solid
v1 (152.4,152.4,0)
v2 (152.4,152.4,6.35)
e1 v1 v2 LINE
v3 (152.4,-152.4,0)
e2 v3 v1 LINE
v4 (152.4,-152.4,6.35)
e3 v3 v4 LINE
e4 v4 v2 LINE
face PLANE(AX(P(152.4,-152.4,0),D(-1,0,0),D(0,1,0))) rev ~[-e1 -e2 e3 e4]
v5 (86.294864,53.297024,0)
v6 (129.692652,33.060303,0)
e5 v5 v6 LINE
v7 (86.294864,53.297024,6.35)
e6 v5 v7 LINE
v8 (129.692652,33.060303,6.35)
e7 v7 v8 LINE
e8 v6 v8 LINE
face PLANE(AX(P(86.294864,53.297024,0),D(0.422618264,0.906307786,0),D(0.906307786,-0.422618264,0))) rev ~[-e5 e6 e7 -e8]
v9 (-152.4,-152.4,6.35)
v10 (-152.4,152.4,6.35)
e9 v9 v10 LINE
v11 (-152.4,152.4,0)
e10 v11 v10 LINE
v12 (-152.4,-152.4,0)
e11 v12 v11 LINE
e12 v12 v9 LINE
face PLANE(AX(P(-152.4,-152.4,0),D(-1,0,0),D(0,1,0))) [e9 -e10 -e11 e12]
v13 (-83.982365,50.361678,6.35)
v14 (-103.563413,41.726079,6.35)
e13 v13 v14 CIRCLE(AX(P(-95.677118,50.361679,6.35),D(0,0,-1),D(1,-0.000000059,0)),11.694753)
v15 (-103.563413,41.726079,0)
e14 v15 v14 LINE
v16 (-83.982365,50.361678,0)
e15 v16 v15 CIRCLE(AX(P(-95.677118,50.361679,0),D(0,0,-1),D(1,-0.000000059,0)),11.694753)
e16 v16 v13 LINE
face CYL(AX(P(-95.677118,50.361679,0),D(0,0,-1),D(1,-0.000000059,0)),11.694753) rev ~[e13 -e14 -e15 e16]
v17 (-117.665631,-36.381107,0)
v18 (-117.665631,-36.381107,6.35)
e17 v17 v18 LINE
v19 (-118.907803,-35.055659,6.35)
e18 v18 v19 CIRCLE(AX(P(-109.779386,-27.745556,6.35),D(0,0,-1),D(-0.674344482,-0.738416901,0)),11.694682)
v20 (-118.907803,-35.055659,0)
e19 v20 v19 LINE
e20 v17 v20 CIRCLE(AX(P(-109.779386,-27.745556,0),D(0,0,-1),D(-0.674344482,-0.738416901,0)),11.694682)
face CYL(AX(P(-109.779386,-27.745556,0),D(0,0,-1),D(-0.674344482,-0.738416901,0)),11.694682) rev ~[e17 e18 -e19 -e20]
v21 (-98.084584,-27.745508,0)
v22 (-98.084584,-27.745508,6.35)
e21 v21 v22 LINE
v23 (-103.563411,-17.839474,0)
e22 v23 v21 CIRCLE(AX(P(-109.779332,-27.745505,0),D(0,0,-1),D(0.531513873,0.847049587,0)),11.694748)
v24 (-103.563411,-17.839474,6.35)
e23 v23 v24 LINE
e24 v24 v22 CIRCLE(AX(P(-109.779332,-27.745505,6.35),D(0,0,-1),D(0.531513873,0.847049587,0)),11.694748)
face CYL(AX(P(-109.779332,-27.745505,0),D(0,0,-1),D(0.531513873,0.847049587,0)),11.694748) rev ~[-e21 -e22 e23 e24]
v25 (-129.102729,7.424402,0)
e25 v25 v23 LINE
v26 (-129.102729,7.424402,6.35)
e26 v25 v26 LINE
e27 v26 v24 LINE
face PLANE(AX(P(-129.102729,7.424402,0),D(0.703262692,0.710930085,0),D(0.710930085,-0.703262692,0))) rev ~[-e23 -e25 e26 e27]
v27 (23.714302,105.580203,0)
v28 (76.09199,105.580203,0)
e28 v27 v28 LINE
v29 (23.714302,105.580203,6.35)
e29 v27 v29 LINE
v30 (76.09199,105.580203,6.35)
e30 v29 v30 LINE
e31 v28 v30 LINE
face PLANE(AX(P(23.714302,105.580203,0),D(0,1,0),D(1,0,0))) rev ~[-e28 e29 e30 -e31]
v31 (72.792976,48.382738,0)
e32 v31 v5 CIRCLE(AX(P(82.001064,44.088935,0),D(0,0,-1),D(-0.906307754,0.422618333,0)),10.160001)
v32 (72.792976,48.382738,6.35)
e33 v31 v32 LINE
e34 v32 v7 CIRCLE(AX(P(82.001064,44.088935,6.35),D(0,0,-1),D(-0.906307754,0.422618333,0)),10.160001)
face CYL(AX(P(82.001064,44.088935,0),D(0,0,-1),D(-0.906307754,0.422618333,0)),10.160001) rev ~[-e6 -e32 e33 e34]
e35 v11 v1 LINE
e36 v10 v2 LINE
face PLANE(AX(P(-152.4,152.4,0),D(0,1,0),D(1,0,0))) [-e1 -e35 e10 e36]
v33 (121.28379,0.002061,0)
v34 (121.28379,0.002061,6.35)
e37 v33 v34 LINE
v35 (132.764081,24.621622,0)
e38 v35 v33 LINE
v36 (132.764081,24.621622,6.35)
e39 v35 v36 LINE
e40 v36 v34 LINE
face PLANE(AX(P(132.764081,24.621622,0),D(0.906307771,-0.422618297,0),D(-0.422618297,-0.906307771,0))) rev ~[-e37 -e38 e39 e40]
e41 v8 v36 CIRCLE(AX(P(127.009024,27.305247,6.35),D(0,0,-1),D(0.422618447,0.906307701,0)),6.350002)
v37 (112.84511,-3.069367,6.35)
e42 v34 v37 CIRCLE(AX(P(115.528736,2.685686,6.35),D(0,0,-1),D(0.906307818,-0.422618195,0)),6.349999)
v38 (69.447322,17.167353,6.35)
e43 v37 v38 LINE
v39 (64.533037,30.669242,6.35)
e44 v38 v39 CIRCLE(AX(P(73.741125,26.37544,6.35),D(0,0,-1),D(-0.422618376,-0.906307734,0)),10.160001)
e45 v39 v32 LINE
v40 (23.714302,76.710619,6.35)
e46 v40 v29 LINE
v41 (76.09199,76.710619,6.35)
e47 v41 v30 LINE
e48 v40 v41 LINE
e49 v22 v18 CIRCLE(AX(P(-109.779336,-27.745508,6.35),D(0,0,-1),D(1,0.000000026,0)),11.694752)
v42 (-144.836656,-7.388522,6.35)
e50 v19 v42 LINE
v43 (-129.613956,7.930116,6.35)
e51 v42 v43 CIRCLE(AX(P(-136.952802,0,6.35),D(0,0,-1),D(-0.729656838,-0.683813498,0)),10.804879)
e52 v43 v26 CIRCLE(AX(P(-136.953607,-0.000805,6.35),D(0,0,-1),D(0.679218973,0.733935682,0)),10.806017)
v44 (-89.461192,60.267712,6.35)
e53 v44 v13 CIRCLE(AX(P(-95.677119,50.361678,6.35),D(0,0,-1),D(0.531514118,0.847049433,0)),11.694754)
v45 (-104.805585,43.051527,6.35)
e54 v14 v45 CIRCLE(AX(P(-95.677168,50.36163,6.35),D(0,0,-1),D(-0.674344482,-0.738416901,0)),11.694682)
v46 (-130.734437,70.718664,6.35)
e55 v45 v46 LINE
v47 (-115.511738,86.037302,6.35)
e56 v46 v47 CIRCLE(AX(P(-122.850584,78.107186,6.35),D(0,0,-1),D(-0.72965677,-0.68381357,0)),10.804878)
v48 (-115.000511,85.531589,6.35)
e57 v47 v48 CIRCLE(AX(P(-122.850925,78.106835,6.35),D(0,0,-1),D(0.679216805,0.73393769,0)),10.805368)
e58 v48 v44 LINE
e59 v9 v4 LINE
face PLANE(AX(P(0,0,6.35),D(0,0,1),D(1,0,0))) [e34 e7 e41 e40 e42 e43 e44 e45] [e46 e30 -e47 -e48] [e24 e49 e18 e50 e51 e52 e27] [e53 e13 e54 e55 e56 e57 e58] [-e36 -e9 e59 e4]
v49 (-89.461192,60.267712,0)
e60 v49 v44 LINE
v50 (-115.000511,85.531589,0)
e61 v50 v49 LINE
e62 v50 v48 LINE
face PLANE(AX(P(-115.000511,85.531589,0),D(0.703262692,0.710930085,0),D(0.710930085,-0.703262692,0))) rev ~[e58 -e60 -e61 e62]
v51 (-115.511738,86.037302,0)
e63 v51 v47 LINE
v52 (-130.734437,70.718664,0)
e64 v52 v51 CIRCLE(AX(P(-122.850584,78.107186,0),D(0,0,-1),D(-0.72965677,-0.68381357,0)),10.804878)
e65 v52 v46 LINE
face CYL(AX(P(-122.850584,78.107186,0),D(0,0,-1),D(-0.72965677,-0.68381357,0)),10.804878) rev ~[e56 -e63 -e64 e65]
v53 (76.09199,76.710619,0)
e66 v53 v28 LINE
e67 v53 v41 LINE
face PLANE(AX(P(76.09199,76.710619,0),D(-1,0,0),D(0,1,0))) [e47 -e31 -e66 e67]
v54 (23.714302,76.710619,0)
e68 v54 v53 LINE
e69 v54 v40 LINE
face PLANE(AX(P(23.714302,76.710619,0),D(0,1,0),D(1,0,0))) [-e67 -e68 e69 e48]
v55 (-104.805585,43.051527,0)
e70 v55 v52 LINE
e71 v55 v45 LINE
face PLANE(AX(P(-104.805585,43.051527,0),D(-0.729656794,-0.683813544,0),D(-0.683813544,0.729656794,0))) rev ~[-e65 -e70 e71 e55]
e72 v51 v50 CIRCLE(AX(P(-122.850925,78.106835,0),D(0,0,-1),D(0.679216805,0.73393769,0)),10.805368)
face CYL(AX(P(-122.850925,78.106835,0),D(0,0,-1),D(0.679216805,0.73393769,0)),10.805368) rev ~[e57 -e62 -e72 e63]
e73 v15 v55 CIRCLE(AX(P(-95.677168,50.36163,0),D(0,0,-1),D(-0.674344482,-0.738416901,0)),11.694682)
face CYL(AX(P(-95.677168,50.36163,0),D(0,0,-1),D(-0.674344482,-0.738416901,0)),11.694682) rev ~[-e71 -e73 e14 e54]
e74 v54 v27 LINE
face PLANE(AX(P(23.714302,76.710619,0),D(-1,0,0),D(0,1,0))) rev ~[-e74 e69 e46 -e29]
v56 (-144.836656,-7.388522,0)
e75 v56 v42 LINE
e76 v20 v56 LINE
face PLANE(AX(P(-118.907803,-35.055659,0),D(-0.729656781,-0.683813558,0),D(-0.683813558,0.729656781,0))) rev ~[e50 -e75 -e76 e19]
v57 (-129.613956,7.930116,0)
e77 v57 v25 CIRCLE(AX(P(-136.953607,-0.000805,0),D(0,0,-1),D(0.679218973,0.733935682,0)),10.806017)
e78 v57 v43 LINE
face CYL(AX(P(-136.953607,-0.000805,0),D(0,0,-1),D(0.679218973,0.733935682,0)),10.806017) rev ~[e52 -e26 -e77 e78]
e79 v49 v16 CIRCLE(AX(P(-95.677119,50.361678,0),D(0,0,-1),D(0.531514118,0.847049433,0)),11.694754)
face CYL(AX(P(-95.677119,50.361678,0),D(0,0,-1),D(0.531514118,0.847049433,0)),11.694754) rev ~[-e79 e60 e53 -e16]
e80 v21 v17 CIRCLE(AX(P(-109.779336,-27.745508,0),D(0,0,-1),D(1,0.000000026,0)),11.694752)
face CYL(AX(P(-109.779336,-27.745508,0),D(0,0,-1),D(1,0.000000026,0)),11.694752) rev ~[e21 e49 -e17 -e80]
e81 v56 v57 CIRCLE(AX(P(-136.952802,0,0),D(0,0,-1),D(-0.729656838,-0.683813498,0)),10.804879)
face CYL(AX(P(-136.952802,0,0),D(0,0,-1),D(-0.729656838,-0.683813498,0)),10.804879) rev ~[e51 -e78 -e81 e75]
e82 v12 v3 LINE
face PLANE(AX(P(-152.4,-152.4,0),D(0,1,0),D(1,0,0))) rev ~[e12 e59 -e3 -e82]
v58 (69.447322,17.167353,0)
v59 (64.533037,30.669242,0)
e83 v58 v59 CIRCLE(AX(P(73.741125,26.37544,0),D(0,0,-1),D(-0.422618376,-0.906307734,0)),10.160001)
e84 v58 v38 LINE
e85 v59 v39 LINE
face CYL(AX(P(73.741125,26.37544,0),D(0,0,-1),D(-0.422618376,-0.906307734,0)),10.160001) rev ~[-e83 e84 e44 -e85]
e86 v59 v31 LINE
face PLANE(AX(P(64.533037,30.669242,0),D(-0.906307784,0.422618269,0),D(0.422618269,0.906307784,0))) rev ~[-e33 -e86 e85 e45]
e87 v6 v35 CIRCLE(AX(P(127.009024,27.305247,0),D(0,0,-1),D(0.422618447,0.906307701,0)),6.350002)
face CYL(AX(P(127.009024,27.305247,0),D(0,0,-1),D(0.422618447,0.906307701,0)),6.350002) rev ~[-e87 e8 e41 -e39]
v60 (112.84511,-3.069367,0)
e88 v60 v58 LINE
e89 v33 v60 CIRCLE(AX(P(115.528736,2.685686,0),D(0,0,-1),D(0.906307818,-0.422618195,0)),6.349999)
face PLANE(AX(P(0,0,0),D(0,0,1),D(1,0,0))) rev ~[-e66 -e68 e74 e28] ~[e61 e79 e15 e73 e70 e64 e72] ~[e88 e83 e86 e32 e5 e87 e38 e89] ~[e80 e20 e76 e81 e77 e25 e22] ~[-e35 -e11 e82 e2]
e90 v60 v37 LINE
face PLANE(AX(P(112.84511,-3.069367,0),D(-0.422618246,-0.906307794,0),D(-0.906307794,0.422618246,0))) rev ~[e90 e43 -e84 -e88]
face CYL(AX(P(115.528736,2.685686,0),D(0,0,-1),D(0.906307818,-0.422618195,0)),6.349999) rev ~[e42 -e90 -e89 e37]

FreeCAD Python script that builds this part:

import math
import FreeCAD as App
import Part
import Sketcher
Q = App.Units.Quantity

doc = App.newDocument("Part")
body = doc.addObject("PartDesign::Body", "Body")

# Sketch on XY plane
sketch1 = doc.addObject("Sketcher::SketchObject", "Sketch")
body.addObject(sketch1)
sketch1.AttachmentSupport = (doc.XY_Plane, [""])
sketch1.MapMode = "FlatFace"
sketch1.addGeometry([
    Part.LineSegment(App.Vector(-152.4, 152.4, 0), App.Vector(-152.4, -152.4, 0)),  # 0
    Part.LineSegment(App.Vector(-152.4, -152.4, 0), App.Vector(152.4, -152.4, 0)),  # 1
    Part.LineSegment(App.Vector(152.4, -152.4, 0), App.Vector(152.4, 152.4, 0)),  # 2
    Part.LineSegment(App.Vector(152.4, 152.4, 0), App.Vector(-152.4, 152.4, 0)),  # 3
    Part.LineSegment(App.Vector(-118.907803, -35.055659, 0), App.Vector(-144.836656, -7.388522, 0)),  # 4
    Part.ArcOfCircle(Part.Circle(App.Vector(-136.952802, 0, 0), App.Vector(0, 0, 1), 10.804879), math.radians(47.217593), math.radians(223.142367)),  # 5
    Part.ArcOfCircle(Part.Circle(App.Vector(-136.953607, -0.000805, 0), App.Vector(0, 0, 1), 10.806017), math.radians(43.403854), math.radians(47.217359)),  # 6
    Part.LineSegment(App.Vector(-129.102729, 7.424402, 0), App.Vector(-103.563411, -17.839474, 0)),  # 7
    Part.ArcOfCircle(Part.Circle(App.Vector(-109.779332, -27.745505, 0), App.Vector(0, 0, 1), 11.694748), math.radians(-0.000014), math.radians(57.892202)),  # 8
    Part.ArcOfCircle(Part.Circle(App.Vector(-109.779336, -27.745508, 0), App.Vector(0, 0, 1), 11.694752), math.radians(-132.403293), math.radians(0.000001)),  # 9
    Part.ArcOfCircle(Part.Circle(App.Vector(-109.779386, -27.745556, 0), App.Vector(0, 0, 1), 11.694682), math.radians(-141.311997), math.radians(-132.403266)),  # 10
    Part.LineSegment(App.Vector(64.533037, 30.669242, 0), App.Vector(72.792976, 48.382738, 0)),  # 11
    Part.ArcOfCircle(Part.Circle(App.Vector(82.001064, 44.088935, 0), App.Vector(0, 0, 1), 10.160001), math.radians(65.000009), math.radians(154.999995)),  # 12
    Part.LineSegment(App.Vector(86.294864, 53.297024, 0), App.Vector(129.692652, 33.060303, 0)),  # 13
    Part.ArcOfCircle(Part.Circle(App.Vector(127.009024, 27.305247, 0), App.Vector(0, 0, 1), 6.350002), math.radians(-24.999985), math.radians(64.999988)),  # 14
    Part.LineSegment(App.Vector(132.764081, 24.621622, 0), App.Vector(121.28379, 0.002061, 0)),  # 15
    Part.ArcOfCircle(Part.Circle(App.Vector(115.528736, 2.685686, 0), App.Vector(0, 0, 1), 6.349999), math.radians(-115.000008), math.radians(-24.999996)),  # 16
    Part.LineSegment(App.Vector(112.84511, -3.069367, 0), App.Vector(69.447322, 17.167353, 0)),  # 17
    Part.ArcOfCircle(Part.Circle(App.Vector(73.741125, 26.37544, 0), App.Vector(0, 0, 1), 10.160001), math.radians(155.000002), math.radians(244.999993)),  # 18
    Part.LineSegment(App.Vector(-104.805585, 43.051527, 0), App.Vector(-130.734437, 70.718664, 0)),  # 19
    Part.ArcOfCircle(Part.Circle(App.Vector(-122.850584, 78.107186, 0), App.Vector(0, 0, 1), 10.804878), math.radians(47.217591), math.radians(223.142372)),  # 20
    Part.ArcOfCircle(Part.Circle(App.Vector(-122.850925, 78.106835, 0), App.Vector(0, 0, 1), 10.805368), math.radians(43.403798), math.radians(47.217528)),  # 21
    Part.LineSegment(App.Vector(-115.000511, 85.531589, 0), App.Vector(-89.461192, 60.267712, 0)),  # 22
    Part.ArcOfCircle(Part.Circle(App.Vector(-95.677119, 50.361678, 0), App.Vector(0, 0, 1), 11.694754), math.radians(0.000002), math.radians(57.892185)),  # 23
    Part.ArcOfCircle(Part.Circle(App.Vector(-95.677118, 50.361679, 0), App.Vector(0, 0, 1), 11.694753), math.radians(-132.40329), math.radians(-0.000003)),  # 24
    Part.ArcOfCircle(Part.Circle(App.Vector(-95.677168, 50.36163, 0), App.Vector(0, 0, 1), 11.694682), math.radians(-141.311997), math.radians(-132.403266)),  # 25
    Part.LineSegment(App.Vector(76.09199, 76.710619, 0), App.Vector(23.714302, 76.710619, 0)),  # 26
    Part.LineSegment(App.Vector(23.714302, 76.710619, 0), App.Vector(23.714302, 105.580203, 0)),  # 27
    Part.LineSegment(App.Vector(23.714302, 105.580203, 0), App.Vector(76.09199, 105.580203, 0)),  # 28
    Part.LineSegment(App.Vector(76.09199, 105.580203, 0), App.Vector(76.09199, 76.710619, 0)),  # 29
], False)
sketch1.addConstraint([
    Sketcher.Constraint("Coincident", 0, 2, 1, 1),
    Sketcher.Constraint("Coincident", 1, 2, 2, 1),
    Sketcher.Constraint("Coincident", 2, 2, 3, 1),
    Sketcher.Constraint("Coincident", 3, 2, 0, 1),
    Sketcher.Constraint("Tangent", 4, 2, 5, 2),
    Sketcher.Constraint("Coincident", 5, 1, 6, 2),
    Sketcher.Constraint("Coincident", 6, 1, 7, 1),
    Sketcher.Constraint("Coincident", 7, 2, 8, 2),
    Sketcher.Constraint("Tangent", 8, 1, 9, 2),
    Sketcher.Constraint("Tangent", 9, 1, 10, 2),
    Sketcher.Constraint("Coincident", 10, 1, 4, 1),
    Sketcher.Constraint("Tangent", 11, 2, 12, 2),
    Sketcher.Constraint("Tangent", 12, 1, 13, 1),
    Sketcher.Constraint("Tangent", 13, 2, 14, 2),
    Sketcher.Constraint("Tangent", 14, 1, 15, 1),
    Sketcher.Constraint("Tangent", 15, 2, 16, 2),
    Sketcher.Constraint("Tangent", 16, 1, 17, 1),
    Sketcher.Constraint("Tangent", 17, 2, 18, 2),
    Sketcher.Constraint("Tangent", 18, 1, 11, 1),
    Sketcher.Constraint("Tangent", 19, 2, 20, 2),
    Sketcher.Constraint("Tangent", 20, 1, 21, 2),
    Sketcher.Constraint("Coincident", 21, 1, 22, 1),
    Sketcher.Constraint("Coincident", 22, 2, 23, 2),
    Sketcher.Constraint("Tangent", 23, 1, 24, 2),
    Sketcher.Constraint("Tangent", 24, 1, 25, 2),
    Sketcher.Constraint("Coincident", 25, 1, 19, 1),
    Sketcher.Constraint("Coincident", 26, 2, 27, 1),
    Sketcher.Constraint("Coincident", 27, 2, 28, 1),
    Sketcher.Constraint("Coincident", 28, 2, 29, 1),
    Sketcher.Constraint("Coincident", 29, 2, 26, 1),
    Sketcher.Constraint("Vertical", 0),
    Sketcher.Constraint("Horizontal", 1),
    Sketcher.Constraint("Vertical", 2),
    Sketcher.Constraint("Horizontal", 3),
    Sketcher.Constraint("Horizontal", 26),
    Sketcher.Constraint("Vertical", 27),
    Sketcher.Constraint("Horizontal", 28),
    Sketcher.Constraint("Vertical", 29),
    Sketcher.Constraint("Equal", 12, 18),
    Sketcher.Constraint("Equal", 5, 20),
    Sketcher.Constraint("Equal", 9, 23),
    Sketcher.Constraint("Equal", 23, 24),
    Sketcher.Constraint("Equal", 10, 25),
    Sketcher.Constraint("Symmetric", 0, 2, 2, 2, -1, 1),
    Sketcher.Constraint("PointOnObject", 5, 3, -1),
    Sketcher.Constraint("Perpendicular", 11, 13),
    Sketcher.Constraint("Perpendicular", 13, 15),
    Sketcher.Constraint("Perpendicular", 15, 17),
    Sketcher.Constraint("Parallel", 4, 19),
    Sketcher.Constraint("Parallel", 7, 22),
    Sketcher.Constraint("Horizontal", 9, 3, 8, 1),
    Sketcher.Constraint("Horizontal", 24, 3, 23, 1),
    Sketcher.Constraint("Vertical", 7, 2, 24, 1),
    Sketcher.Constraint("Equal", 3, 0),
    Sketcher.Constraint("Equal", 13, 17),
    Sketcher.Constraint("Equal", 4, 19),
    Sketcher.Constraint("Equal", 7, 22),
    Sketcher.Constraint("Radius", 12, Q("0.4 in")),
    Sketcher.Constraint("DistanceX", 1, 1, 1, 2, Q("12 in")),
    Sketcher.Constraint("Radius", 14, Q("0.2500001 in")),
    Sketcher.Constraint("Angle", 11, Q("65 deg")),
    Sketcher.Constraint("Radius", 5, 10.804879),
    Sketcher.Constraint("Radius", 9, 11.694752),
    Sketcher.Constraint("Radius", 6, 10.806017),
    Sketcher.Constraint("Radius", 8, 11.694748),
    Sketcher.Constraint("Radius", 10, 11.694682),
    Sketcher.Constraint("Radius", 21, 10.805368),
    Sketcher.Constraint("DistanceY", 18, 3, 26, 2, Q("1.9816999 in")),
    Sketcher.Constraint("DistanceY", -1, 1, 6, 1, 7.424402),
    Sketcher.Constraint("DistanceY", -1, 1, 20, 1, 86.037302),
    Sketcher.Constraint("DistanceX", -1, 1, 26, 2, 23.714302),
    Sketcher.Constraint("DistanceY", 8, 3, 6, 3, 27.7447),
    Sketcher.Constraint("DistanceX", 9, 3, 12, 3, 191.780399),
    Sketcher.Constraint("DistanceX", 18, 3, 14, 3, 53.267899),
    Sketcher.Constraint("DistanceX", 4, 2, 5, 1, 15.2227),
    Sketcher.Constraint("DistanceY", 9, 1, 9, 3, 8.635599),
    Sketcher.Constraint("DistanceY", 14, 1, 12, 1, 28.675402),
    Sketcher.Constraint("DistanceX", 19, 2, 20, 1, 15.222699),
    Sketcher.Constraint("DistanceY", 24, 1, 23, 3, 8.635599),
    Sketcher.Constraint("Distance", 7, 35.923811),
    Sketcher.Constraint("DistanceX", 26, 2, 26, 1, 52.377688),
    Sketcher.Constraint("DistanceY", 27, 1, 27, 2, 28.869584),
    Sketcher.Constraint("DistanceX", 8, 3, -1, 1, 109.779332),
    Sketcher.Constraint("DistanceY", 9, 3, -1, 1, 27.745508),
    Sketcher.Constraint("DistanceY", -1, 1, 18, 3, 26.37544),
    Sketcher.Constraint("DistanceX", 23, 3, -1, 1, 95.677119),
    Sketcher.Constraint("DistanceY", -1, 1, 24, 3, 50.361679),
    Sketcher.Constraint("DistanceY", 10, 1, -1, 1, 35.055659),
])
pad1 = doc.addObject("PartDesign::Pad", "Pad")
body.addObject(pad1)
pad1.Profile = sketch1
pad1.Length = Q("0.25 in")

doc.recompute()
